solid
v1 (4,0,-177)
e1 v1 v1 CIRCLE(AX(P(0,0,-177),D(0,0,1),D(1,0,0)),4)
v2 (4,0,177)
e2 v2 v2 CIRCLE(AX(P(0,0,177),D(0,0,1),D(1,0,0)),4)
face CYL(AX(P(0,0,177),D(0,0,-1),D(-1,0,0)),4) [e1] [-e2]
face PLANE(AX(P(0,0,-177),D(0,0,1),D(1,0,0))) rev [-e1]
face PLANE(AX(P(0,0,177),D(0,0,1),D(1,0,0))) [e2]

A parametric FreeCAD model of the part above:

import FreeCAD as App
import Part
import Sketcher
from FreeCAD import Vector

doc = App.newDocument("Part")
params = doc.addObject("Spreadsheet::Sheet", "Params")
for row, (alias, value) in enumerate([
    ("sketch1_diameter", "8 mm"),
    ("pad1_length", "354 mm"),
], start=1):
    params.set(f"A{row}", alias)
    params.set(f"B{row}", "=" + value)
    params.setAlias(f"B{row}", alias)

body = doc.addObject("PartDesign::Body", "Body")

sketch1 = body.newObject("Sketcher::SketchObject", "Sketch")
sketch1.AttachmentSupport = (doc.getObject("XY_Plane"), [""])
sketch1.MapMode = "FlatFace"
sketch1.addGeometry(Part.Circle(Vector(0, 0, 0), Vector(0, 0, 1), 4), False)
sketch1.addConstraint([
    Sketcher.Constraint("Coincident", 0, 3, -1, 1),
    Sketcher.Constraint("Diameter", 0, 8.0),
])
sketch1.setExpression("Constraints[1]", "Params.sketch1_diameter")
pad1 = body.newObject("PartDesign::Pad", "Pad")
pad1.Profile = sketch1
pad1.setExpression("Length", "Params.pad1_length")
pad1.Midplane = True

doc.recompute()
